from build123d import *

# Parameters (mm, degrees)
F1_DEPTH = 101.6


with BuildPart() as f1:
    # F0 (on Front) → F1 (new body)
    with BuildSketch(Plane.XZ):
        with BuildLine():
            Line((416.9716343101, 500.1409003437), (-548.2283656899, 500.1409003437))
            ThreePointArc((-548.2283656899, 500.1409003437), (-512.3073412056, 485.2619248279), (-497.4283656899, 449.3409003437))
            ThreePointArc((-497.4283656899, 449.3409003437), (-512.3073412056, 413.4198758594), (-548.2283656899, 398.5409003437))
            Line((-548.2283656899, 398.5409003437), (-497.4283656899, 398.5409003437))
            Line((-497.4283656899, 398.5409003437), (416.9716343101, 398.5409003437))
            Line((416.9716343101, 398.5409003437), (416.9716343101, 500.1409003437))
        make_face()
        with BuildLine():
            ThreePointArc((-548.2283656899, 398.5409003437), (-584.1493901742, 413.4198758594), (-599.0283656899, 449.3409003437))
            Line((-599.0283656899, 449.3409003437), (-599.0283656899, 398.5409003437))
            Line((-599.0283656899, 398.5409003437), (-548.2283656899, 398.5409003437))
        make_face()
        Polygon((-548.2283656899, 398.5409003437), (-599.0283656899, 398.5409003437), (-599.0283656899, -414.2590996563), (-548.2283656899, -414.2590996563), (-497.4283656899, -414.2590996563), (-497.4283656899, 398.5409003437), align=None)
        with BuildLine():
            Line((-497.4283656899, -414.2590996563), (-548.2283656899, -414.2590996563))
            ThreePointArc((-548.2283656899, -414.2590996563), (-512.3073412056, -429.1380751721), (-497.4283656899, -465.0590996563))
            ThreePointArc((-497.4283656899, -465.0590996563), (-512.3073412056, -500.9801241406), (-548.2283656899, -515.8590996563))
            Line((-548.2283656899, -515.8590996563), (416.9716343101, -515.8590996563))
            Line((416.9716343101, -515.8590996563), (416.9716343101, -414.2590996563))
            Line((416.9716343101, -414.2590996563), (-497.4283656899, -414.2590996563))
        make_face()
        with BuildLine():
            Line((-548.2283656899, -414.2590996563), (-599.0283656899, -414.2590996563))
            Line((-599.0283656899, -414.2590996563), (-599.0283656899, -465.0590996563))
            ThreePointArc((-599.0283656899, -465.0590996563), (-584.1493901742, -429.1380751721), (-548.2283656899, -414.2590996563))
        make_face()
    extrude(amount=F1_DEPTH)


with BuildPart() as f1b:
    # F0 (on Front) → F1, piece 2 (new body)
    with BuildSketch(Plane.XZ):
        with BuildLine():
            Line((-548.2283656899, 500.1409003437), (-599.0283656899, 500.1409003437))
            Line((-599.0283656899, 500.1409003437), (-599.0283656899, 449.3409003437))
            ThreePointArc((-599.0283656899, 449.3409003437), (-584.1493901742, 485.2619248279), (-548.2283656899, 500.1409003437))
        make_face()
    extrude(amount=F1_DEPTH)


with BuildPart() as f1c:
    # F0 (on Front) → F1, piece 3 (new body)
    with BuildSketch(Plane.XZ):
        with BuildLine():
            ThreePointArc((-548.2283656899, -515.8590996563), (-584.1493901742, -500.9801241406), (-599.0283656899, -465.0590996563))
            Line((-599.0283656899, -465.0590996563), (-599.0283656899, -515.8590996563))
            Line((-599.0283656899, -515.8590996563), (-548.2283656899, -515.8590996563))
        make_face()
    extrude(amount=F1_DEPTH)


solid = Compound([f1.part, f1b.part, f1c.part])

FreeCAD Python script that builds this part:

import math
import FreeCAD as App
import Part
import Sketcher
Q = App.Units.Quantity

doc = App.newDocument("Part")
params = doc.addObject("Spreadsheet::Sheet", "Params")
for row, (alias, value) in enumerate([
    ("sketch1_radius", "2 in"),
    ("sketch1_width", "38 in"),
    ("sketch1_width2", "36 in"),
    ("pad1_length", "4 in"),
    ("sketch2_radius", "2 in"),
    ("pad2_length", "4 in"),
    ("sketch3_radius", "2 in"),
    ("pad3_length", "4 in"),
], start=1):
    params.set(f"A{row}", alias)
    params.set(f"B{row}", "=" + value)
    params.setAlias(f"B{row}", alias)

body = doc.addObject("PartDesign::Body", "Body")

# Sketch on XZ plane
sketch1 = body.newObject("Sketcher::SketchObject", "Sketch")
sketch1.AttachmentSupport = (doc.getObject("XZ_Plane"), [""])
sketch1.MapMode = "FlatFace"
sketch1.addGeometry([
    Part.LineSegment(App.Vector(417, 500, 0), App.Vector(-548, 500, 0)),  # 0
    Part.ArcOfCircle(Part.Circle(App.Vector(-548, 449, 0), App.Vector(0, 0, 1), 51), math.radians(180), math.radians(450)),  # 1
    Part.LineSegment(App.Vector(-599, 449, 0), App.Vector(-599, -465, 0)),  # 2
    Part.ArcOfCircle(Part.Circle(App.Vector(-548, -465, 0), App.Vector(0, 0, 1), 51), math.radians(90), math.radians(180)),  # 3
    Part.ArcOfCircle(Part.Circle(App.Vector(-548, -465, 0), App.Vector(0, 0, 1), 51), math.radians(-90), math.radians(90)),  # 4
    Part.LineSegment(App.Vector(-548, -516, 0), App.Vector(417, -516, 0)),  # 5
    Part.LineSegment(App.Vector(417, -516, 0), App.Vector(417, -414, 0)),  # 6
    Part.LineSegment(App.Vector(417, -414, 0), App.Vector(-497, -414, 0)),  # 7
    Part.LineSegment(App.Vector(-497, -414, 0), App.Vector(-497, 399, 0)),  # 8
    Part.LineSegment(App.Vector(-497, 399, 0), App.Vector(417, 399, 0)),  # 9
    Part.LineSegment(App.Vector(417, 399, 0), App.Vector(417, 500, 0)),  # 10
], False)
sketch1.addConstraint([
    Sketcher.Constraint("Tangent", 0, 2, 1, 2),
    Sketcher.Constraint("Tangent", 1, 1, 2, 1),
    Sketcher.Constraint("Tangent", 2, 2, 3, 2),
    Sketcher.Constraint("Tangent", 3, 1, 4, 2),
    Sketcher.Constraint("Tangent", 4, 1, 5, 1),
    Sketcher.Constraint("Coincident", 5, 2, 6, 1),
    Sketcher.Constraint("Coincident", 6, 2, 7, 1),
    Sketcher.Constraint("Coincident", 7, 2, 8, 1),
    Sketcher.Constraint("Coincident", 8, 2, 9, 1),
    Sketcher.Constraint("Coincident", 9, 2, 10, 1),
    Sketcher.Constraint("Coincident", 10, 2, 0, 1),
    Sketcher.Constraint("Horizontal", 0),
    Sketcher.Constraint("Vertical", 2),
    Sketcher.Constraint("Horizontal", 5),
    Sketcher.Constraint("Vertical", 6),
    Sketcher.Constraint("Horizontal", 7),
    Sketcher.Constraint("Vertical", 8),
    Sketcher.Constraint("Horizontal", 9),
    Sketcher.Constraint("Vertical", 10),
    Sketcher.Constraint("Equal", 1, 3),
    Sketcher.Constraint("Equal", 3, 4),
    Sketcher.Constraint("Horizontal", 3, 1, 6, 2),
    Sketcher.Constraint("Vertical", 0, 2, 3, 1),
    Sketcher.Constraint("Vertical", 6, 2, 9, 2),
    Sketcher.Constraint("Equal", 9, 2),
    Sketcher.Constraint("Equal", 6, 10),
    Sketcher.Constraint("Radius", 1, Q("2 in")),
    Sketcher.Constraint("DistanceX", 0, 2, 0, 1, Q("38 in")),
    Sketcher.Constraint("DistanceX", 7, 2, 7, 1, Q("36 in")),
    Sketcher.Constraint("DistanceY", -1, 1, 1, 3, Q("449.3409 mm")),
    Sketcher.Constraint("DistanceX", 1, 3, -1, 1, Q("548.228366 mm")),
])
sketch1.setExpression("Constraints[26]", "Params.sketch1_radius")
sketch1.setExpression("Constraints[27]", "Params.sketch1_width")
sketch1.setExpression("Constraints[28]", "Params.sketch1_width2")
pad1 = body.newObject("PartDesign::Pad", "Pad")
pad1.Profile = sketch1
pad1.setExpression("Length", "Params.pad1_length")
body2 = doc.addObject("PartDesign::Body", "Body001")

# Sketch on XZ plane
sketch2 = body2.newObject("Sketcher::SketchObject", "Sketch001")
sketch2.AttachmentSupport = (doc.getObject("XZ_Plane001"), [""])
sketch2.MapMode = "FlatFace"
sketch2.addGeometry([
    Part.LineSegment(App.Vector(-548, 500, 0), App.Vector(-599, 500, 0)),
    Part.LineSegment(App.Vector(-599, 500, 0), App.Vector(-599, 449, 0)),
    Part.ArcOfCircle(Part.Circle(App.Vector(-548, 449, 0), App.Vector(0, 0, 1), 51), math.radians(90), math.radians(180)),
], False)
sketch2.addConstraint([
    Sketcher.Constraint("Coincident", 0, 2, 1, 1),
    Sketcher.Constraint("Tangent", 1, 2, 2, 2),
    Sketcher.Constraint("Tangent", 2, 1, 0, 1),
    Sketcher.Constraint("Horizontal", 0),
    Sketcher.Constraint("Vertical", 1),
    Sketcher.Constraint("Radius", 2, Q("2 in")),
    Sketcher.Constraint("DistanceY", -1, 1, 2, 3, Q("449.3409 mm")),
    Sketcher.Constraint("DistanceX", 2, 3, -1, 1, Q("548.228366 mm")),
])
sketch2.setExpression("Constraints[5]", "Params.sketch2_radius")
pad2 = body2.newObject("PartDesign::Pad", "Pad001")
pad2.Profile = sketch2
pad2.setExpression("Length", "Params.pad2_length")
body3 = doc.addObject("PartDesign::Body", "Body002")

# Sketch on XZ plane
sketch3 = body3.newObject("Sketcher::SketchObject", "Sketch002")
sketch3.AttachmentSupport = (doc.getObject("XZ_Plane002"), [""])
sketch3.MapMode = "FlatFace"
sketch3.addGeometry([
    Part.ArcOfCircle(Part.Circle(App.Vector(-548, -465, 0), App.Vector(0, 0, 1), 51), math.radians(180), math.radians(270)),
    Part.LineSegment(App.Vector(-599, -465, 0), App.Vector(-599, -516, 0)),
    Part.LineSegment(App.Vector(-599, -516, 0), App.Vector(-548, -516, 0)),
], False)
sketch3.addConstraint([
    Sketcher.Constraint("Tangent", 0, 1, 1, 1),
    Sketcher.Constraint("Coincident", 1, 2, 2, 1),
    Sketcher.Constraint("Tangent", 2, 2, 0, 2),
    Sketcher.Constraint("Vertical", 1),
    Sketcher.Constraint("Horizontal", 2),
    Sketcher.Constraint("Radius", 0, Q("2 in")),
    Sketcher.Constraint("DistanceY", 0, 3, -1, 1, Q("465.0591 mm")),
    Sketcher.Constraint("DistanceX", 0, 3, -1, 1, Q("548.228366 mm")),
])
sketch3.setExpression("Constraints[5]", "Params.sketch3_radius")
pad3 = body3.newObject("PartDesign::Pad", "Pad002")
pad3.Profile = sketch3
pad3.setExpression("Length", "Params.pad3_length")

doc.recompute()
